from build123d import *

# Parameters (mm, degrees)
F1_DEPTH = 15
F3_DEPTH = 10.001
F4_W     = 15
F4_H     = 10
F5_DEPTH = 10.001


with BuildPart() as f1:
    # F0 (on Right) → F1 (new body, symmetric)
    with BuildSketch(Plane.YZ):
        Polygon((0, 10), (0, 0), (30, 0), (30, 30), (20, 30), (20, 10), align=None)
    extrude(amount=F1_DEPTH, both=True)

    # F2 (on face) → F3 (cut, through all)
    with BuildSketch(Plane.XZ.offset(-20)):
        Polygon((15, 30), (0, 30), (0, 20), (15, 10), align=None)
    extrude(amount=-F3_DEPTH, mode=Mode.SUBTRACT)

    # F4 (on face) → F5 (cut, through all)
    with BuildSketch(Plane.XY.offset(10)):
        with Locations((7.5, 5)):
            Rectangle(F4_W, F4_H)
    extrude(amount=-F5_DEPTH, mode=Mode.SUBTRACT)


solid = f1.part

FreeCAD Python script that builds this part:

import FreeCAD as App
import Part
import Sketcher
from FreeCAD import Vector

doc = App.newDocument("Part")
params = doc.addObject("Spreadsheet::Sheet", "Params")
for row, (alias, value) in enumerate([
    ("sketch1_width", "30 mm"),
    ("sketch1_width2", "10 mm"),
    ("pad1_length", "30 mm"),
    ("sketch2_width", "15 mm"),
    ("sketch2_height", "10 mm"),
    ("sketch2_height2", "20 mm"),
    ("sketch3_width", "15 mm"),
    ("sketch3_height", "10 mm"),
], start=1):
    params.set(f"A{row}", alias)
    params.set(f"B{row}", "=" + value)
    params.setAlias(f"B{row}", alias)

body = doc.addObject("PartDesign::Body", "Body")

# Sketch on YZ plane
sketch1 = body.newObject("Sketcher::SketchObject", "Sketch")
sketch1.AttachmentSupport = (doc.getObject("YZ_Plane"), [""])
sketch1.MapMode = "FlatFace"
sketch1.addGeometry([
    Part.LineSegment(Vector(0, 10, 0), Vector(0, 0, 0)),  # 0
    Part.LineSegment(Vector(0, 0, 0), Vector(30, 0, 0)),  # 1
    Part.LineSegment(Vector(30, 0, 0), Vector(30, 30, 0)),  # 2
    Part.LineSegment(Vector(30, 30, 0), Vector(20, 30, 0)),  # 3
    Part.LineSegment(Vector(20, 30, 0), Vector(20, 10, 0)),  # 4
    Part.LineSegment(Vector(20, 10, 0), Vector(0, 10, 0)),  # 5
], False)
sketch1.addConstraint([
    Sketcher.Constraint("Coincident", 0, 2, 1, 1),
    Sketcher.Constraint("Coincident", 1, 2, 2, 1),
    Sketcher.Constraint("Coincident", 2, 2, 3, 1),
    Sketcher.Constraint("Coincident", 3, 2, 4, 1),
    Sketcher.Constraint("Coincident", 4, 2, 5, 1),
    Sketcher.Constraint("Coincident", 5, 2, 0, 1),
    Sketcher.Constraint("Vertical", 0),
    Sketcher.Constraint("Horizontal", 1),
    Sketcher.Constraint("Vertical", 2),
    Sketcher.Constraint("Horizontal", 3),
    Sketcher.Constraint("Vertical", 4),
    Sketcher.Constraint("Horizontal", 5),
    Sketcher.Constraint("Coincident", 0, 2, -1, 1),
    Sketcher.Constraint("Equal", 3, 0),
    Sketcher.Constraint("Equal", 1, 2),
    Sketcher.Constraint("DistanceX", 1, 1, 1, 2, 30.0),
    Sketcher.Constraint("DistanceX", 3, 2, 3, 1, 10.0),
])
sketch1.setExpression("Constraints[15]", "Params.sketch1_width")
sketch1.setExpression("Constraints[16]", "Params.sketch1_width2")
pad1 = body.newObject("PartDesign::Pad", "Pad")
pad1.Profile = sketch1
pad1.setExpression("Length", "Params.pad1_length")
pad1.Midplane = True

# Sketch on XZ plane
sketch2 = body.newObject("Sketcher::SketchObject", "Sketch001")
sketch2.AttachmentSupport = (doc.getObject("XZ_Plane"), [""])
sketch2.MapMode = "FlatFace"
sketch2.AttachmentOffset = App.Placement(Vector(0, 0, -20), App.Rotation())
sketch2.addGeometry([
    Part.LineSegment(Vector(15, 30, 0), Vector(0, 30, 0)),
    Part.LineSegment(Vector(0, 30, 0), Vector(0, 20, 0)),
    Part.LineSegment(Vector(0, 20, 0), Vector(15, 10, 0)),
    Part.LineSegment(Vector(15, 10, 0), Vector(15, 30, 0)),
], False)
sketch2.addConstraint([
    Sketcher.Constraint("Coincident", 0, 2, 1, 1),
    Sketcher.Constraint("Coincident", 1, 2, 2, 1),
    Sketcher.Constraint("Coincident", 2, 2, 3, 1),
    Sketcher.Constraint("Coincident", 3, 2, 0, 1),
    Sketcher.Constraint("Horizontal", 0),
    Sketcher.Constraint("Vertical", 1),
    Sketcher.Constraint("Vertical", 3),
    Sketcher.Constraint("PointOnObject", 0, 2, -2),
    Sketcher.Constraint("DistanceX", 0, 2, 0, 1, 15.0),
    Sketcher.Constraint("DistanceY", 1, 2, 1, 1, 10.0),
    Sketcher.Constraint("DistanceY", 3, 1, 3, 2, 20.0),
    Sketcher.Constraint("DistanceY", -1, 1, 0, 2, 30.0),
])
sketch2.setExpression("Constraints[8]", "Params.sketch2_width")
sketch2.setExpression("Constraints[9]", "Params.sketch2_height")
sketch2.setExpression("Constraints[10]", "Params.sketch2_height2")
pocket1 = body.newObject("PartDesign::Pocket", "Pocket")
pocket1.Profile = sketch2
pocket1.Type = "ThroughAll"

# Sketch on XY plane
sketch3 = body.newObject("Sketcher::SketchObject", "Sketch002")
sketch3.AttachmentSupport = (doc.getObject("XY_Plane"), [""])
sketch3.MapMode = "FlatFace"
sketch3.AttachmentOffset = App.Placement(Vector(0, 0, 10), App.Rotation())
sketch3.addGeometry([
    Part.LineSegment(Vector(0, 10, 0), Vector(0, 0, 0)),
    Part.LineSegment(Vector(0, 0, 0), Vector(15, 0, 0)),
    Part.LineSegment(Vector(15, 0, 0), Vector(15, 10, 0)),
    Part.LineSegment(Vector(15, 10, 0), Vector(0, 10, 0)),
], False)
sketch3.addConstraint([
    Sketcher.Constraint("Coincident", 0, 2, 1, 1),
    Sketcher.Constraint("Coincident", 1, 2, 2, 1),
    Sketcher.Constraint("Coincident", 2, 2, 3, 1),
    Sketcher.Constraint("Coincident", 3, 2, 0, 1),
    Sketcher.Constraint("Vertical", 0),
    Sketcher.Constraint("Horizontal", 1),
    Sketcher.Constraint("Vertical", 2),
    Sketcher.Constraint("Horizontal", 3),
    Sketcher.Constraint("Coincident", 0, 2, -1, 1),
    Sketcher.Constraint("DistanceX", 1, 1, 1, 2, 15.0),
    Sketcher.Constraint("DistanceY", 0, 2, 0, 1, 10.0),
])
sketch3.setExpression("Constraints[9]", "Params.sketch3_width")
sketch3.setExpression("Constraints[10]", "Params.sketch3_height")
pocket2 = body.newObject("PartDesign::Pocket", "Pocket001")
pocket2.Profile = sketch3
pocket2.Type = "ThroughAll"

doc.recompute()
